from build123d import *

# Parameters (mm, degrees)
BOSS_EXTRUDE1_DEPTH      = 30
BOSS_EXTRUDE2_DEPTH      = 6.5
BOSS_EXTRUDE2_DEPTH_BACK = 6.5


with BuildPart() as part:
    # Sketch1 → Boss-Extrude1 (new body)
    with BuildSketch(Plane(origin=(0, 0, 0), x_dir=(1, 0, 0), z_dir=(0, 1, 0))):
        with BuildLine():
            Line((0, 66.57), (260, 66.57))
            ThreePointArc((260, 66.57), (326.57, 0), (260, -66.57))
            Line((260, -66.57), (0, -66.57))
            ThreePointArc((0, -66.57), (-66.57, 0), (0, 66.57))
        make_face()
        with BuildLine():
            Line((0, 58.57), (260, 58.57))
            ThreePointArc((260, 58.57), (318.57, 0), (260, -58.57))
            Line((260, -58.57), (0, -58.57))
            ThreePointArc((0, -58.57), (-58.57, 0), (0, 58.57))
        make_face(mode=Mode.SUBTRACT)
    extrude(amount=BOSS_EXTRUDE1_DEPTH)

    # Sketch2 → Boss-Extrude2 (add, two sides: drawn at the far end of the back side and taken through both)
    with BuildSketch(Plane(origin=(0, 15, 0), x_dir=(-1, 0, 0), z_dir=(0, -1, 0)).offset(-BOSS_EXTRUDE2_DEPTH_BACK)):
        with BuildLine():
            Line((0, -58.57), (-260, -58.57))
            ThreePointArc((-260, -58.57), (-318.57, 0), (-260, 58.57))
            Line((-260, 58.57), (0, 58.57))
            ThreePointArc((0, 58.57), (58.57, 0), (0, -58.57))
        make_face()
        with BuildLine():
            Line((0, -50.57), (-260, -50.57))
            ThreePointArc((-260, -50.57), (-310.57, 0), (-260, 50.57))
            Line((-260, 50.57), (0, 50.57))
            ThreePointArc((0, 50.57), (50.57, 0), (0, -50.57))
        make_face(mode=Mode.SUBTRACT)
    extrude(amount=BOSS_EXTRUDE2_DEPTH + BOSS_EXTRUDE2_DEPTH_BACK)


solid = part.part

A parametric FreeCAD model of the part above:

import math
import FreeCAD as App
import Part
import Sketcher

V = App.Vector
Q = App.Units.Quantity

doc = App.newDocument("Part")
params = doc.addObject("Spreadsheet::Sheet", "Params")
for row, (alias, value) in enumerate([
    ("sketch1_width", "260 mm"),
    ("sketch1_radius", "66.57 mm"),
    ("sketch1_radius2", "58.57 mm"),
    ("pad1_length", "30 mm"),
    ("sketch2_width", "260 mm"),
    ("sketch2_radius", "58.57 mm"),
    ("sketch2_radius2", "50.57 mm"),
    ("pad2_length", "6.5 mm"),
    ("pad2_length2", "6.5 mm"),
], start=1):
    params.set(f"A{row}", alias)
    params.set(f"B{row}", "=" + value)
    params.setAlias(f"B{row}", alias)

body = doc.addObject("PartDesign::Body", "Body")

# Sketch on XZ plane
sketch1 = doc.addObject("Sketcher::SketchObject", "Sketch")
body.addObject(sketch1)
sketch1.AttachmentSupport = (doc.XZ_Plane, [""])
sketch1.MapMode = "FlatFace"
sketch1.addGeometry(Part.LineSegment(V(260, -67, 0), V(0, -67, 0)), False)
sketch1.addGeometry(Part.ArcOfCircle(Part.Circle(V(0, 0, 0), V(0, 0, 1), 67), math.radians(90), math.radians(270)), False)
sketch1.addGeometry(Part.LineSegment(V(0, 67, 0), V(260, 67, 0)), False)
sketch1.addGeometry(Part.ArcOfCircle(Part.Circle(V(260, 0, 0), V(0, 0, 1), 67), math.radians(-90), math.radians(90)), False)
sketch1.addGeometry(Part.LineSegment(V(0, -59, 0), V(260, -59, 0)), False)
sketch1.addGeometry(Part.ArcOfCircle(Part.Circle(V(260, 0, 0), V(0, 0, 1), 59), math.radians(-90), math.radians(90)), False)
sketch1.addGeometry(Part.LineSegment(V(260, 59, 0), V(0, 59, 0)), False)
sketch1.addGeometry(Part.ArcOfCircle(Part.Circle(V(0, 0, 0), V(0, 0, 1), 59), math.radians(90), math.radians(270)), False)
sketch1.addConstraint(Sketcher.Constraint("Tangent", 0, 2, 1, 2))
sketch1.addConstraint(Sketcher.Constraint("Tangent", 1, 1, 2, 1))
sketch1.addConstraint(Sketcher.Constraint("Tangent", 2, 2, 3, 2))
sketch1.addConstraint(Sketcher.Constraint("Tangent", 3, 1, 0, 1))
sketch1.addConstraint(Sketcher.Constraint("Tangent", 4, 2, 5, 1))
sketch1.addConstraint(Sketcher.Constraint("Tangent", 5, 2, 6, 1))
sketch1.addConstraint(Sketcher.Constraint("Tangent", 6, 2, 7, 1))
sketch1.addConstraint(Sketcher.Constraint("Tangent", 7, 2, 4, 1))
sketch1.addConstraint(Sketcher.Constraint("Horizontal", 0))
sketch1.addConstraint(Sketcher.Constraint("Horizontal", 2))
sketch1.addConstraint(Sketcher.Constraint("Horizontal", 4))
sketch1.addConstraint(Sketcher.Constraint("Horizontal", 6))
sketch1.addConstraint(Sketcher.Constraint("Coincident", 1, 3, -1, 1))
sketch1.addConstraint(Sketcher.Constraint("Coincident", 7, 3, -1, 1))
sketch1.addConstraint(Sketcher.Constraint("Vertical", 5, 3, 2, 2))
sketch1.addConstraint(Sketcher.Constraint("DistanceX", 0, 2, 0, 1, Q("260 mm")))
sketch1.addConstraint(Sketcher.Constraint("Radius", 1, Q("66.57 mm")))
sketch1.addConstraint(Sketcher.Constraint("Radius", 5, Q("58.57 mm")))
sketch1.setExpression("Constraints[15]", "Params.sketch1_width")
sketch1.setExpression("Constraints[16]", "Params.sketch1_radius")
sketch1.setExpression("Constraints[17]", "Params.sketch1_radius2")
pad1 = doc.addObject("PartDesign::Pad", "Pad")
body.addObject(pad1)
pad1.Profile = sketch1
pad1.setExpression("Length", "Params.pad1_length")
pad1.Reversed = True

# Sketch on XZ plane
sketch2 = doc.addObject("Sketcher::SketchObject", "Sketch001")
body.addObject(sketch2)
sketch2.AttachmentSupport = (doc.XZ_Plane, [""])
sketch2.MapMode = "FlatFace"
sketch2.AttachmentOffset = App.Placement(V(0, 0, -15), App.Rotation())
sketch2.addGeometry(Part.LineSegment(V(260, 59, 0), V(0, 59, 0)), False)
sketch2.addGeometry(Part.ArcOfCircle(Part.Circle(V(0, 0, 0), V(0, 0, 1), 59), math.radians(90), math.radians(270)), False)
sketch2.addGeometry(Part.LineSegment(V(0, -59, 0), V(260, -59, 0)), False)
sketch2.addGeometry(Part.ArcOfCircle(Part.Circle(V(260, 0, 0), V(0, 0, 1), 59), math.radians(-90), math.radians(90)), False)
sketch2.addGeometry(Part.LineSegment(V(0, 51, 0), V(260, 51, 0)), False)
sketch2.addGeometry(Part.ArcOfCircle(Part.Circle(V(260, 0, 0), V(0, 0, 1), 51), math.radians(-90), math.radians(90)), False)
sketch2.addGeometry(Part.LineSegment(V(260, -51, 0), V(0, -51, 0)), False)
sketch2.addGeometry(Part.ArcOfCircle(Part.Circle(V(0, 0, 0), V(0, 0, 1), 51), math.radians(90), math.radians(270)), False)
sketch2.addConstraint(Sketcher.Constraint("Tangent", 0, 2, 1, 1))
sketch2.addConstraint(Sketcher.Constraint("Tangent", 1, 2, 2, 1))
sketch2.addConstraint(Sketcher.Constraint("Tangent", 2, 2, 3, 1))
sketch2.addConstraint(Sketcher.Constraint("Tangent", 3, 2, 0, 1))
sketch2.addConstraint(Sketcher.Constraint("Tangent", 4, 2, 5, 2))
sketch2.addConstraint(Sketcher.Constraint("Tangent", 5, 1, 6, 1))
sketch2.addConstraint(Sketcher.Constraint("Tangent", 6, 2, 7, 2))
sketch2.addConstraint(Sketcher.Constraint("Tangent", 7, 1, 4, 1))
sketch2.addConstraint(Sketcher.Constraint("Horizontal", 0))
sketch2.addConstraint(Sketcher.Constraint("Horizontal", 2))
sketch2.addConstraint(Sketcher.Constraint("Horizontal", 4))
sketch2.addConstraint(Sketcher.Constraint("Horizontal", 6))
sketch2.addConstraint(Sketcher.Constraint("Coincident", 1, 3, -1, 1))
sketch2.addConstraint(Sketcher.Constraint("Coincident", 7, 3, -1, 1))
sketch2.addConstraint(Sketcher.Constraint("Vertical", 5, 3, 2, 2))
sketch2.addConstraint(Sketcher.Constraint("DistanceX", 0, 2, 0, 1, Q("260 mm")))
sketch2.addConstraint(Sketcher.Constraint("Radius", 1, Q("58.57 mm")))
sketch2.addConstraint(Sketcher.Constraint("Radius", 5, Q("50.57 mm")))
sketch2.setExpression("Constraints[15]", "Params.sketch2_width")
sketch2.setExpression("Constraints[16]", "Params.sketch2_radius")
sketch2.setExpression("Constraints[17]", "Params.sketch2_radius2")
pad2 = doc.addObject("PartDesign::Pad", "Pad001")
body.addObject(pad2)
pad2.Profile = sketch2
pad2.Type = "TwoLengths"
pad2.setExpression("Length", "Params.pad2_length")
pad2.setExpression("Length2", "Params.pad2_length2")

doc.recompute()
